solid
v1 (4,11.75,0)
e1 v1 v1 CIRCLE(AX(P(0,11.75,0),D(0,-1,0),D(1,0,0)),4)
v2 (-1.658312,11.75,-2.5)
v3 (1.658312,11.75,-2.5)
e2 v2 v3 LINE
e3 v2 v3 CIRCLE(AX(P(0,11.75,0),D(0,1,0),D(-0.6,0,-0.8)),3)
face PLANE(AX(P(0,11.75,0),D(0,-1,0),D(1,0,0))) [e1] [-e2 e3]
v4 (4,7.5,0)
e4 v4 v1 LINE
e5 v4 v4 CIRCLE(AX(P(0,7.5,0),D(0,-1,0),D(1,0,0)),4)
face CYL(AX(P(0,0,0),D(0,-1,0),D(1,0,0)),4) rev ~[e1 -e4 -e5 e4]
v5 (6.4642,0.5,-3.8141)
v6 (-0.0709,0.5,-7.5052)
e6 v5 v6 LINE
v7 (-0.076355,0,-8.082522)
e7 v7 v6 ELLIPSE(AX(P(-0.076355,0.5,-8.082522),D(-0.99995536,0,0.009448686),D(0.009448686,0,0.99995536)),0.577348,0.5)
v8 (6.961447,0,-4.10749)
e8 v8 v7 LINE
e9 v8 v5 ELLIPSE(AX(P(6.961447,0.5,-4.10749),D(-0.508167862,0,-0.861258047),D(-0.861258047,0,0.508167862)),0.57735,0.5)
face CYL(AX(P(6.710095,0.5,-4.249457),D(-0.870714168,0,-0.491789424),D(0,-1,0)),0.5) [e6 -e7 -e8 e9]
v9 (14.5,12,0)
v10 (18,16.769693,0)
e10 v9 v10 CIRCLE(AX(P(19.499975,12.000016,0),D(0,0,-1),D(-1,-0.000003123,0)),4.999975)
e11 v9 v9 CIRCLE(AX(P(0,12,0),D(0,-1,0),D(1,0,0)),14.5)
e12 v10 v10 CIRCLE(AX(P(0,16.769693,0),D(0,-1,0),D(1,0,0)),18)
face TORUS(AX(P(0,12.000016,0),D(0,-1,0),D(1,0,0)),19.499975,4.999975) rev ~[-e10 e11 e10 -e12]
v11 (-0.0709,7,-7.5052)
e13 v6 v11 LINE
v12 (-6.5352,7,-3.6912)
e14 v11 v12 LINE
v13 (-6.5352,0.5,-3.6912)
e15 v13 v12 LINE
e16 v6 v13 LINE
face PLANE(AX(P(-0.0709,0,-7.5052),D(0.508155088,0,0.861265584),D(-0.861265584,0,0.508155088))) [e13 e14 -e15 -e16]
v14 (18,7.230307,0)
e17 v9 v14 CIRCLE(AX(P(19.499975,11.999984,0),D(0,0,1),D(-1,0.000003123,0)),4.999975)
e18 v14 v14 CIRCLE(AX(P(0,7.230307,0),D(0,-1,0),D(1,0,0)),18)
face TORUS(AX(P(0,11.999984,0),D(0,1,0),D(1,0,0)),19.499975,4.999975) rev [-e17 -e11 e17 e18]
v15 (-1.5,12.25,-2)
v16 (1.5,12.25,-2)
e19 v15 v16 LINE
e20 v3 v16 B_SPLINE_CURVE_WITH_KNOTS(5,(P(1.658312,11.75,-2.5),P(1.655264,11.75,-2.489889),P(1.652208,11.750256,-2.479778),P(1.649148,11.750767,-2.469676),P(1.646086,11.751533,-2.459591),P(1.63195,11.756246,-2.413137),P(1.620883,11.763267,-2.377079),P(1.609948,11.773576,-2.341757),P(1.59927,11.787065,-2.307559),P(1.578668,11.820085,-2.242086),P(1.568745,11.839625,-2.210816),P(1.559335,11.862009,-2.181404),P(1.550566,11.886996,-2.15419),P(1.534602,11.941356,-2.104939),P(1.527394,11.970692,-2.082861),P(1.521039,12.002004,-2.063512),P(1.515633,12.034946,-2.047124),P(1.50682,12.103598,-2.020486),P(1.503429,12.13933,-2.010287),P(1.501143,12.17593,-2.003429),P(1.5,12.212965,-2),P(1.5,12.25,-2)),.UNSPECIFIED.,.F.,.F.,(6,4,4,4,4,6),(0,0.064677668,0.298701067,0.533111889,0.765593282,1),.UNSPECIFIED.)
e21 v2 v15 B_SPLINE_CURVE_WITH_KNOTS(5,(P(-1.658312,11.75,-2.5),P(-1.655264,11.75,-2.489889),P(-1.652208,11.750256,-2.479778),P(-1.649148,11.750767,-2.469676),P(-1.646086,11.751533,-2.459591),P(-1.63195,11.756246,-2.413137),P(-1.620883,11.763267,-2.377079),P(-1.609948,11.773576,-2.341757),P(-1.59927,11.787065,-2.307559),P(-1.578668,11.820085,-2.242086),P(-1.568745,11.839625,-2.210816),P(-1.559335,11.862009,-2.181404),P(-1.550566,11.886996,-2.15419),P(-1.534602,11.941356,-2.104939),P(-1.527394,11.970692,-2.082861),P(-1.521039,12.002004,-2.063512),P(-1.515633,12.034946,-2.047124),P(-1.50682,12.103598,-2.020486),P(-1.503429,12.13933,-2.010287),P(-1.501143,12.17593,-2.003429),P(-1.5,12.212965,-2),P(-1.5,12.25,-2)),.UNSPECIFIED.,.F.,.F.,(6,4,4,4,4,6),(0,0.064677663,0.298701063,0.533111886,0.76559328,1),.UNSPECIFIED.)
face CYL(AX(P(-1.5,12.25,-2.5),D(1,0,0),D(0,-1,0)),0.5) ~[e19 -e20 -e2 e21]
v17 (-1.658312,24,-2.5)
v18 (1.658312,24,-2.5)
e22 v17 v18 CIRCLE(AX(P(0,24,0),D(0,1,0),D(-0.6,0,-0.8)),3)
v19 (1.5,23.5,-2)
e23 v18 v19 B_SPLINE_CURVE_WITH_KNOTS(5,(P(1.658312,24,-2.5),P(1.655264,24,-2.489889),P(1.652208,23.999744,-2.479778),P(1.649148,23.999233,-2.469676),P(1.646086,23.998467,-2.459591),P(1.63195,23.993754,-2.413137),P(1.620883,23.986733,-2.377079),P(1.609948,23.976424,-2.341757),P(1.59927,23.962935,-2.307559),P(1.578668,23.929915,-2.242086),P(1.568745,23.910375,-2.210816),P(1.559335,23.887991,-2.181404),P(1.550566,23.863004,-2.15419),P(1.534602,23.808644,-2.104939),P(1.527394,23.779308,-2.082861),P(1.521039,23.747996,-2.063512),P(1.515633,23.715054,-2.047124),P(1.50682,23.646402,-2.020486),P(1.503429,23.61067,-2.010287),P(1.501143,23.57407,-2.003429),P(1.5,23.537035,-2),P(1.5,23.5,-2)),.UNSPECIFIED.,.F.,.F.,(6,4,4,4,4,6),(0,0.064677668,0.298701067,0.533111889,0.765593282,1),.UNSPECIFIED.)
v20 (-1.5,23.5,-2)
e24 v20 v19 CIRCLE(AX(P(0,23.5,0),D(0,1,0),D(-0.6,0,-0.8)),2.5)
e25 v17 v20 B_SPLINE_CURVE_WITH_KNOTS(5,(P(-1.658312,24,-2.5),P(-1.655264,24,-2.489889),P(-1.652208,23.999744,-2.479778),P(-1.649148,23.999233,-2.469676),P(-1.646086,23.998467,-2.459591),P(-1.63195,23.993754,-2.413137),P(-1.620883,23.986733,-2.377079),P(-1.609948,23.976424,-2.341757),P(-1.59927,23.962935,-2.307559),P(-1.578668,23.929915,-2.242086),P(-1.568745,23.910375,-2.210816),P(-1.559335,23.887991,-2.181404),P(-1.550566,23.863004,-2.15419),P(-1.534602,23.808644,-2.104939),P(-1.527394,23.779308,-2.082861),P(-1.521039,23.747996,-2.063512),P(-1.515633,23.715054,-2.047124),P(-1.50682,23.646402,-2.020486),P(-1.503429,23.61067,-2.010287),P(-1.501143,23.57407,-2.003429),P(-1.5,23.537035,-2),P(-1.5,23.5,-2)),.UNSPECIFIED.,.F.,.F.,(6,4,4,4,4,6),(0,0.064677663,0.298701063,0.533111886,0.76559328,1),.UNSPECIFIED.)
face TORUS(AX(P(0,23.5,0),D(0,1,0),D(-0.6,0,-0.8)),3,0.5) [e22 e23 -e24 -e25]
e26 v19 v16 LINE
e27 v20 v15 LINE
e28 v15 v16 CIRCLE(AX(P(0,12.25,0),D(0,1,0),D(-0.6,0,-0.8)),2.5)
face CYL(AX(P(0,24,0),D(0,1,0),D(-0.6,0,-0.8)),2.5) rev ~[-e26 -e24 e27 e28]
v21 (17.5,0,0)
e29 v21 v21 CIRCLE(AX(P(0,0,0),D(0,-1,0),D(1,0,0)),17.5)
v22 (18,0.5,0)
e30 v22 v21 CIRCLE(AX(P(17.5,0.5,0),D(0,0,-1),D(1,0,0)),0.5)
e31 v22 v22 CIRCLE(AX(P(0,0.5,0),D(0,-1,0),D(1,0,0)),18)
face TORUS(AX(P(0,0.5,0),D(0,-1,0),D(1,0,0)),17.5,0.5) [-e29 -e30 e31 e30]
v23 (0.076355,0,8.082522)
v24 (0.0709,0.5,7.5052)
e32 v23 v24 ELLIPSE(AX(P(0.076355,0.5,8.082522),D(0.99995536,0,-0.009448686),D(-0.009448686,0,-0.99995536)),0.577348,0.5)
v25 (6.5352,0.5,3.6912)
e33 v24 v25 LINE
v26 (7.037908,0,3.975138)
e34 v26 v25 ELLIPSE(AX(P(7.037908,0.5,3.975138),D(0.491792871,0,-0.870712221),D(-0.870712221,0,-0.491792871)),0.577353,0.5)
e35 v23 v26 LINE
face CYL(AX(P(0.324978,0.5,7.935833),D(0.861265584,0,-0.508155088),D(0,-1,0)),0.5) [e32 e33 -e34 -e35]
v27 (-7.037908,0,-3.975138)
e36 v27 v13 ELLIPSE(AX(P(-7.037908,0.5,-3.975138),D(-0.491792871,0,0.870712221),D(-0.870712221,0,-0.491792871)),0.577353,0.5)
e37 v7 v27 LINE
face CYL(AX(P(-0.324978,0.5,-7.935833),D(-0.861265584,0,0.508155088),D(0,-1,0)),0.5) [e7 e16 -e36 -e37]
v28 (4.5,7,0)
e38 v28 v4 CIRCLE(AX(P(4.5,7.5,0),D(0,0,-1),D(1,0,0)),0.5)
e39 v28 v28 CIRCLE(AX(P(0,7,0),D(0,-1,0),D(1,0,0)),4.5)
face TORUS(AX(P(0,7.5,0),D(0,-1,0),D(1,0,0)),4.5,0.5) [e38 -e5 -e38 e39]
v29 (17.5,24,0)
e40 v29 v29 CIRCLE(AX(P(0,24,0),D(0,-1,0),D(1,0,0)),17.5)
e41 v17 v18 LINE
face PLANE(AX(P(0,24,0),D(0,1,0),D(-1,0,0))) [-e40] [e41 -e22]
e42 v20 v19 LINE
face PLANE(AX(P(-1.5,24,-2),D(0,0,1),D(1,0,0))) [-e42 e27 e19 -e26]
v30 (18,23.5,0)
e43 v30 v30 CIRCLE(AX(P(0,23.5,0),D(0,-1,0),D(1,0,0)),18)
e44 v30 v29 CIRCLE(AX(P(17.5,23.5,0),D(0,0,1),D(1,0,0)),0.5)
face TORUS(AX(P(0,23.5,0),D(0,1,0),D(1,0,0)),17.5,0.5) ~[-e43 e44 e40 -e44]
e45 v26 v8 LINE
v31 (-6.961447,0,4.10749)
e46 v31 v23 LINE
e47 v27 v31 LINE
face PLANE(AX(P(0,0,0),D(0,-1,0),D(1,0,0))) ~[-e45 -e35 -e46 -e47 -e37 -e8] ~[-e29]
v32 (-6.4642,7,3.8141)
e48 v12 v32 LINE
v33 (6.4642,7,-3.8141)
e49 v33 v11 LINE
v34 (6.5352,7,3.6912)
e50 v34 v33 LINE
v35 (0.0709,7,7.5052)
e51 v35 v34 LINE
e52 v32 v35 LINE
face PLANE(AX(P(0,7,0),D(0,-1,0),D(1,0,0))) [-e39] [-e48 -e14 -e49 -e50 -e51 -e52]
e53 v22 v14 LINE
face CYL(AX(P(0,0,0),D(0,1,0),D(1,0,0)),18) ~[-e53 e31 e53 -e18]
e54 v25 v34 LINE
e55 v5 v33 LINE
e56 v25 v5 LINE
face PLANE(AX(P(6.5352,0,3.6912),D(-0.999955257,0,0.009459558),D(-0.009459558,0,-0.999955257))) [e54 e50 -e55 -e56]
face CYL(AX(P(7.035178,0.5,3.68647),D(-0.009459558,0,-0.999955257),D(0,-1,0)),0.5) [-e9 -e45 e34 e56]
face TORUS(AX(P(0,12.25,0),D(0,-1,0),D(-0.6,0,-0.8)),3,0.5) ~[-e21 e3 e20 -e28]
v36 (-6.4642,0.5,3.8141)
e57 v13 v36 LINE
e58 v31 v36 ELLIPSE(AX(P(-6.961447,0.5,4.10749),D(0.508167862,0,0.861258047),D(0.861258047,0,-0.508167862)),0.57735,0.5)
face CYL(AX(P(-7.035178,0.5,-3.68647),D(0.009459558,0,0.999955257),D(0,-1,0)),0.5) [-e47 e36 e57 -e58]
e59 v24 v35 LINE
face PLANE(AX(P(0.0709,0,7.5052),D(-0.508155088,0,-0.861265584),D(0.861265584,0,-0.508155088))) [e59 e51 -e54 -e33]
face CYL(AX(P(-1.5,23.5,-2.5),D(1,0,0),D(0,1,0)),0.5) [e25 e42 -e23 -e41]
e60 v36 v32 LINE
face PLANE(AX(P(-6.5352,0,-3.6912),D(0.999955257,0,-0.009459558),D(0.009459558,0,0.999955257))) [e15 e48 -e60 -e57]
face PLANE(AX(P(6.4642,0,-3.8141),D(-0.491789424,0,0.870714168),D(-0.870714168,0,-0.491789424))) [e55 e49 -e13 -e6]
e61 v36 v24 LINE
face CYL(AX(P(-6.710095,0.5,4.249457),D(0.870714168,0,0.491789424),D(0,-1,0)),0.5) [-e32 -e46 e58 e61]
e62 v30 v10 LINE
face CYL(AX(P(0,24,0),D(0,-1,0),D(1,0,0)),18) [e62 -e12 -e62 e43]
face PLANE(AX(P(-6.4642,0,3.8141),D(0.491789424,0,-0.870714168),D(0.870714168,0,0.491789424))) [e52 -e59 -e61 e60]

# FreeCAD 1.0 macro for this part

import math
import FreeCAD as App
import Part
import Sketcher
from FreeCAD import Vector
Q = App.Units.Quantity


def edges_at(feature, points):
    """Names of the edges that pass closest to the given points."""
    edges = feature.Shape.Edges
    near = lambda p: min(range(len(edges)), key=lambda i: edges[i].distToShape(Part.Vertex(*p))[0])
    return sorted({f"Edge{near(p) + 1}" for p in points})

doc = App.newDocument("Part")
body = doc.addObject("PartDesign::Body", "Body")

# Sketch on XY plane
sketch1 = body.newObject("Sketcher::SketchObject", "Sketch")
sketch1.AttachmentSupport = (doc.getObject("XY_Plane"), [""])
sketch1.MapMode = "FlatFace"
sketch1.addGeometry([
    Part.LineSegment(Vector(0, 12, 0), Vector(0, 0, 0)),  # 0
    Part.LineSegment(Vector(0, 0, 0), Vector(18, 0, 0)),  # 1
    Part.LineSegment(Vector(18, 0, 0), Vector(18, 7, 0)),  # 2
    Part.ArcOfCircle(Part.Circle(Vector(20, 12, 0), Vector(0, 0, 1), 5), math.radians(180), math.radians(253)),  # 3
    Part.LineSegment(Vector(14, 12, 0), Vector(0, 12, 0)),  # 4
], False)
sketch1.addConstraint([
    Sketcher.Constraint("Coincident", 0, 2, 1, 1),
    Sketcher.Constraint("Coincident", 1, 2, 2, 1),
    Sketcher.Constraint("Coincident", 2, 2, 3, 2),
    Sketcher.Constraint("Coincident", 3, 1, 4, 1),
    Sketcher.Constraint("Coincident", 4, 2, 0, 1),
    Sketcher.Constraint("Vertical", 0),
    Sketcher.Constraint("Horizontal", 1),
    Sketcher.Constraint("Vertical", 2),
    Sketcher.Constraint("Horizontal", 4),
    Sketcher.Constraint("Coincident", 0, 2, -1, 1),
    Sketcher.Constraint("Radius", 3, 5.0),
    Sketcher.Constraint("DistanceX", 1, 1, 1, 2, 18.0),
    Sketcher.Constraint("DistanceY", 0, 2, 0, 1, 12.0),
    Sketcher.Constraint("DistanceY", -1, 1, 3, 3, 12.0),
    Sketcher.Constraint("DistanceX", 1, 2, 3, 3, 1.5),
])
revolution = body.newObject("PartDesign::Revolution", "Revolution")
revolution.Profile = sketch1
revolution.ReferenceAxis = (sketch1, ["V_Axis"])
revolution.Angle = 360
doc.recompute()

datumplane = body.newObject("PartDesign::Plane", "DatumPlane")
datumplane.AttachmentSupport = (doc.getObject("XZ_Plane"), [""])
datumplane.MapMode = "FlatFace"
datumplane.AttachmentOffset = App.Placement(Vector(0, 0, -12), App.Rotation())
mirrored = body.newObject("PartDesign::Mirrored", "Mirrored")
mirrored.Originals = [revolution]
mirrored.MirrorPlane = (datumplane, [""])
body.Tip = mirrored
doc.recompute()

fillet = body.newObject("PartDesign::Fillet", "Fillet")
fillet.Base = (mirrored, edges_at(mirrored, [(-18, 0, 0), (-18, 24, 0)]))
fillet.Radius = 0.5

# Sketch on XZ plane
sketch2 = body.newObject("Sketcher::SketchObject", "Sketch001")
sketch2.AttachmentSupport = (doc.getObject("XZ_Plane"), [""])
sketch2.MapMode = "FlatFace"
sketch2.AttachmentOffset = App.Placement(Vector(0, 0, -24), App.Rotation())
sketch2.addGeometry([
    Part.LineSegment(Vector(1.5, -2, 0), Vector(-1.5, -2, 0)),
    Part.ArcOfCircle(Part.Circle(Vector(0, 0, 0), Vector(0, 0, 1), 2.5), math.radians(-53), math.radians(233)),
], False)
sketch2.addConstraint([
    Sketcher.Constraint("Coincident", 0, 1, 1, 1),
    Sketcher.Constraint("Coincident", 1, 2, 0, 2),
    Sketcher.Constraint("Horizontal", 0),
    Sketcher.Constraint("Coincident", 1, 3, -1, 1),
    Sketcher.Constraint("Radius", 1, 2.5),
    Sketcher.Constraint("DistanceY", 0, 1, -1, 1, 2.0),
])
pocket1 = body.newObject("PartDesign::Pocket", "Pocket")
pocket1.Profile = sketch2
pocket1.Length = 12.25
pocket1.Reversed = True

# Sketch on XZ plane
sketch3 = body.newObject("Sketcher::SketchObject", "Sketch002")
sketch3.AttachmentSupport = (doc.getObject("XZ_Plane"), [""])
sketch3.MapMode = "FlatFace"
sketch3.addGeometry(Part.Circle(Vector(0, 0, 0), Vector(0, 0, 1), 4), False)
sketch3.addConstraint([
    Sketcher.Constraint("Coincident", 0, 3, -1, 1),
    Sketcher.Constraint("Diameter", 0, 8.0),
])
pocket2 = body.newObject("PartDesign::Pocket", "Pocket001")
pocket2.Profile = sketch3
pocket2.Length = 11.75

# Sketch on XZ plane
sketch4 = body.newObject("Sketcher::SketchObject", "Sketch003")
sketch4.AttachmentSupport = (doc.getObject("XZ_Plane"), [""])
sketch4.MapMode = "FlatFace"
sketch4.addGeometry([
    Part.LineSegment(Vector(6, -4, 0), Vector(7, 4, 0)),  # 0
    Part.LineSegment(Vector(7, 4, 0), Vector(0, 8, 0)),  # 1
    Part.LineSegment(Vector(0, 8, 0), Vector(-6, 4, 0)),  # 2
    Part.LineSegment(Vector(-6, 4, 0), Vector(-7, -4, 0)),  # 3
    Part.LineSegment(Vector(-7, -4, 0), Vector(0, -8, 0)),  # 4
    Part.LineSegment(Vector(0, -8, 0), Vector(6, -4, 0)),  # 5
], False)
sketch4.addConstraint([
    Sketcher.Constraint("Coincident", 0, 2, 1, 1),
    Sketcher.Constraint("Coincident", 1, 2, 2, 1),
    Sketcher.Constraint("Coincident", 2, 2, 3, 1),
    Sketcher.Constraint("Coincident", 3, 2, 4, 1),
    Sketcher.Constraint("Coincident", 4, 2, 5, 1),
    Sketcher.Constraint("Coincident", 5, 2, 0, 1),
    Sketcher.Constraint("Symmetric", 0, 2, 3, 2, -1, 1),
    Sketcher.Constraint("Symmetric", 1, 2, 4, 2, -1, 1),
    Sketcher.Constraint("Symmetric", 2, 2, 5, 2, -1, 1),
    Sketcher.Constraint("Equal", 0, 1),
    Sketcher.Constraint("Equal", 1, 2),
    Sketcher.Constraint("Angle", 1, Q("149.459 deg")),
    Sketcher.Constraint("DistanceX", -1, 1, 1, 2, 0.071),
    Sketcher.Constraint("DistanceY", -1, 1, 2, 2, 3.814),
    Sketcher.Constraint("DistanceY", 0, 2, 1, 2, 3.814),
])
pocket3 = body.newObject("PartDesign::Pocket", "Pocket002")
pocket3.Profile = sketch4
pocket3.Length = 7
doc.recompute()

fillet2 = body.newObject("PartDesign::Fillet", "Fillet001")
fillet2.Base = (pocket3, edges_at(pocket3, [
    (-3.303, 0, -5.598),
    (3.197, 0, -5.66),
    (6.5, 0, -0.061),
    (3.303, 0, 5.598),
    (-3.197, 0, 5.66),
    (-6.5, 0, 0.061),
    (-4, 7, 0),
    (0, 11.75, -2),
    (0, 11.75, 2.5),
    (0, 24, 2.5),
    (0, 24, -2),
]))
fillet2.Radius = 0.5

doc.recompute()
